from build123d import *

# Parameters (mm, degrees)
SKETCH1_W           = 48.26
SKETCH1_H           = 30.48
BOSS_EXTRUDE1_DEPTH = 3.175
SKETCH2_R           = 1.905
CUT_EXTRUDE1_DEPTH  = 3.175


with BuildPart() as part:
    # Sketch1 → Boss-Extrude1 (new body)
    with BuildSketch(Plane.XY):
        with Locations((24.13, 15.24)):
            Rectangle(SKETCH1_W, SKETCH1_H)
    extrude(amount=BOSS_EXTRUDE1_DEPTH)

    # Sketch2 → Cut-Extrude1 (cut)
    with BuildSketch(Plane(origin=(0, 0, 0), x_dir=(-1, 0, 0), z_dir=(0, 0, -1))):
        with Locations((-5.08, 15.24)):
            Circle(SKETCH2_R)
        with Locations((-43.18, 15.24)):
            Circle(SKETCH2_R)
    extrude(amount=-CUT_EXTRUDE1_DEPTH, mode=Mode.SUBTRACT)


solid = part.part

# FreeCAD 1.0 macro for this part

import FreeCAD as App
import Part
import Sketcher
from FreeCAD import Vector
Q = App.Units.Quantity

doc = App.newDocument("Part")
body = doc.addObject("PartDesign::Body", "Body")

sketch1 = body.newObject("Sketcher::SketchObject", "Sketch")
sketch1.AttachmentSupport = (doc.getObject("XY_Plane"), [""])
sketch1.MapMode = "FlatFace"
sketch1.addGeometry([
    Part.LineSegment(Vector(0, 30, 0), Vector(0, 0, 0)),
    Part.LineSegment(Vector(0, 0, 0), Vector(48, 0, 0)),
    Part.LineSegment(Vector(48, 0, 0), Vector(48, 30, 0)),
    Part.LineSegment(Vector(48, 30, 0), Vector(0, 30, 0)),
], False)
sketch1.addConstraint([
    Sketcher.Constraint("Coincident", 0, 2, 1, 1),
    Sketcher.Constraint("Coincident", 1, 2, 2, 1),
    Sketcher.Constraint("Coincident", 2, 2, 3, 1),
    Sketcher.Constraint("Coincident", 3, 2, 0, 1),
    Sketcher.Constraint("Vertical", 0),
    Sketcher.Constraint("Horizontal", 1),
    Sketcher.Constraint("Vertical", 2),
    Sketcher.Constraint("Horizontal", 3),
    Sketcher.Constraint("Coincident", 0, 2, -1, 1),
    Sketcher.Constraint("DistanceX", 1, 1, 1, 2, Q("1.9 in")),
    Sketcher.Constraint("DistanceY", 0, 2, 0, 1, Q("1.2 in")),
])
pad1 = body.newObject("PartDesign::Pad", "Pad")
pad1.Profile = sketch1
pad1.Length = Q("0.125 in")

sketch2 = body.newObject("Sketcher::SketchObject", "Sketch001")
sketch2.AttachmentSupport = (doc.getObject("XY_Plane"), [""])
sketch2.MapMode = "FlatFace"
sketch2.addGeometry([
    Part.Circle(Vector(5.1, 15.2, 0), Vector(0, 0, 1), 1.9),
    Part.Circle(Vector(43.2, 15.2, 0), Vector(0, 0, 1), 1.9),
], False)
sketch2.addConstraint([
    Sketcher.Constraint("Equal", 0, 1),
    Sketcher.Constraint("Horizontal", 0, 3, 1, 3),
    Sketcher.Constraint("Diameter", 0, Q("0.15 in")),
    Sketcher.Constraint("DistanceX", -1, 1, 0, 3, Q("0.2 in")),
    Sketcher.Constraint("DistanceY", -1, 1, 0, 3, Q("0.6 in")),
    Sketcher.Constraint("DistanceX", -1, 1, 1, 3, Q("1.7 in")),
])
pocket1 = body.newObject("PartDesign::Pocket", "Pocket")
pocket1.Profile = sketch2
pocket1.Length = Q("0.125 in")
pocket1.Reversed = True

doc.recompute()
